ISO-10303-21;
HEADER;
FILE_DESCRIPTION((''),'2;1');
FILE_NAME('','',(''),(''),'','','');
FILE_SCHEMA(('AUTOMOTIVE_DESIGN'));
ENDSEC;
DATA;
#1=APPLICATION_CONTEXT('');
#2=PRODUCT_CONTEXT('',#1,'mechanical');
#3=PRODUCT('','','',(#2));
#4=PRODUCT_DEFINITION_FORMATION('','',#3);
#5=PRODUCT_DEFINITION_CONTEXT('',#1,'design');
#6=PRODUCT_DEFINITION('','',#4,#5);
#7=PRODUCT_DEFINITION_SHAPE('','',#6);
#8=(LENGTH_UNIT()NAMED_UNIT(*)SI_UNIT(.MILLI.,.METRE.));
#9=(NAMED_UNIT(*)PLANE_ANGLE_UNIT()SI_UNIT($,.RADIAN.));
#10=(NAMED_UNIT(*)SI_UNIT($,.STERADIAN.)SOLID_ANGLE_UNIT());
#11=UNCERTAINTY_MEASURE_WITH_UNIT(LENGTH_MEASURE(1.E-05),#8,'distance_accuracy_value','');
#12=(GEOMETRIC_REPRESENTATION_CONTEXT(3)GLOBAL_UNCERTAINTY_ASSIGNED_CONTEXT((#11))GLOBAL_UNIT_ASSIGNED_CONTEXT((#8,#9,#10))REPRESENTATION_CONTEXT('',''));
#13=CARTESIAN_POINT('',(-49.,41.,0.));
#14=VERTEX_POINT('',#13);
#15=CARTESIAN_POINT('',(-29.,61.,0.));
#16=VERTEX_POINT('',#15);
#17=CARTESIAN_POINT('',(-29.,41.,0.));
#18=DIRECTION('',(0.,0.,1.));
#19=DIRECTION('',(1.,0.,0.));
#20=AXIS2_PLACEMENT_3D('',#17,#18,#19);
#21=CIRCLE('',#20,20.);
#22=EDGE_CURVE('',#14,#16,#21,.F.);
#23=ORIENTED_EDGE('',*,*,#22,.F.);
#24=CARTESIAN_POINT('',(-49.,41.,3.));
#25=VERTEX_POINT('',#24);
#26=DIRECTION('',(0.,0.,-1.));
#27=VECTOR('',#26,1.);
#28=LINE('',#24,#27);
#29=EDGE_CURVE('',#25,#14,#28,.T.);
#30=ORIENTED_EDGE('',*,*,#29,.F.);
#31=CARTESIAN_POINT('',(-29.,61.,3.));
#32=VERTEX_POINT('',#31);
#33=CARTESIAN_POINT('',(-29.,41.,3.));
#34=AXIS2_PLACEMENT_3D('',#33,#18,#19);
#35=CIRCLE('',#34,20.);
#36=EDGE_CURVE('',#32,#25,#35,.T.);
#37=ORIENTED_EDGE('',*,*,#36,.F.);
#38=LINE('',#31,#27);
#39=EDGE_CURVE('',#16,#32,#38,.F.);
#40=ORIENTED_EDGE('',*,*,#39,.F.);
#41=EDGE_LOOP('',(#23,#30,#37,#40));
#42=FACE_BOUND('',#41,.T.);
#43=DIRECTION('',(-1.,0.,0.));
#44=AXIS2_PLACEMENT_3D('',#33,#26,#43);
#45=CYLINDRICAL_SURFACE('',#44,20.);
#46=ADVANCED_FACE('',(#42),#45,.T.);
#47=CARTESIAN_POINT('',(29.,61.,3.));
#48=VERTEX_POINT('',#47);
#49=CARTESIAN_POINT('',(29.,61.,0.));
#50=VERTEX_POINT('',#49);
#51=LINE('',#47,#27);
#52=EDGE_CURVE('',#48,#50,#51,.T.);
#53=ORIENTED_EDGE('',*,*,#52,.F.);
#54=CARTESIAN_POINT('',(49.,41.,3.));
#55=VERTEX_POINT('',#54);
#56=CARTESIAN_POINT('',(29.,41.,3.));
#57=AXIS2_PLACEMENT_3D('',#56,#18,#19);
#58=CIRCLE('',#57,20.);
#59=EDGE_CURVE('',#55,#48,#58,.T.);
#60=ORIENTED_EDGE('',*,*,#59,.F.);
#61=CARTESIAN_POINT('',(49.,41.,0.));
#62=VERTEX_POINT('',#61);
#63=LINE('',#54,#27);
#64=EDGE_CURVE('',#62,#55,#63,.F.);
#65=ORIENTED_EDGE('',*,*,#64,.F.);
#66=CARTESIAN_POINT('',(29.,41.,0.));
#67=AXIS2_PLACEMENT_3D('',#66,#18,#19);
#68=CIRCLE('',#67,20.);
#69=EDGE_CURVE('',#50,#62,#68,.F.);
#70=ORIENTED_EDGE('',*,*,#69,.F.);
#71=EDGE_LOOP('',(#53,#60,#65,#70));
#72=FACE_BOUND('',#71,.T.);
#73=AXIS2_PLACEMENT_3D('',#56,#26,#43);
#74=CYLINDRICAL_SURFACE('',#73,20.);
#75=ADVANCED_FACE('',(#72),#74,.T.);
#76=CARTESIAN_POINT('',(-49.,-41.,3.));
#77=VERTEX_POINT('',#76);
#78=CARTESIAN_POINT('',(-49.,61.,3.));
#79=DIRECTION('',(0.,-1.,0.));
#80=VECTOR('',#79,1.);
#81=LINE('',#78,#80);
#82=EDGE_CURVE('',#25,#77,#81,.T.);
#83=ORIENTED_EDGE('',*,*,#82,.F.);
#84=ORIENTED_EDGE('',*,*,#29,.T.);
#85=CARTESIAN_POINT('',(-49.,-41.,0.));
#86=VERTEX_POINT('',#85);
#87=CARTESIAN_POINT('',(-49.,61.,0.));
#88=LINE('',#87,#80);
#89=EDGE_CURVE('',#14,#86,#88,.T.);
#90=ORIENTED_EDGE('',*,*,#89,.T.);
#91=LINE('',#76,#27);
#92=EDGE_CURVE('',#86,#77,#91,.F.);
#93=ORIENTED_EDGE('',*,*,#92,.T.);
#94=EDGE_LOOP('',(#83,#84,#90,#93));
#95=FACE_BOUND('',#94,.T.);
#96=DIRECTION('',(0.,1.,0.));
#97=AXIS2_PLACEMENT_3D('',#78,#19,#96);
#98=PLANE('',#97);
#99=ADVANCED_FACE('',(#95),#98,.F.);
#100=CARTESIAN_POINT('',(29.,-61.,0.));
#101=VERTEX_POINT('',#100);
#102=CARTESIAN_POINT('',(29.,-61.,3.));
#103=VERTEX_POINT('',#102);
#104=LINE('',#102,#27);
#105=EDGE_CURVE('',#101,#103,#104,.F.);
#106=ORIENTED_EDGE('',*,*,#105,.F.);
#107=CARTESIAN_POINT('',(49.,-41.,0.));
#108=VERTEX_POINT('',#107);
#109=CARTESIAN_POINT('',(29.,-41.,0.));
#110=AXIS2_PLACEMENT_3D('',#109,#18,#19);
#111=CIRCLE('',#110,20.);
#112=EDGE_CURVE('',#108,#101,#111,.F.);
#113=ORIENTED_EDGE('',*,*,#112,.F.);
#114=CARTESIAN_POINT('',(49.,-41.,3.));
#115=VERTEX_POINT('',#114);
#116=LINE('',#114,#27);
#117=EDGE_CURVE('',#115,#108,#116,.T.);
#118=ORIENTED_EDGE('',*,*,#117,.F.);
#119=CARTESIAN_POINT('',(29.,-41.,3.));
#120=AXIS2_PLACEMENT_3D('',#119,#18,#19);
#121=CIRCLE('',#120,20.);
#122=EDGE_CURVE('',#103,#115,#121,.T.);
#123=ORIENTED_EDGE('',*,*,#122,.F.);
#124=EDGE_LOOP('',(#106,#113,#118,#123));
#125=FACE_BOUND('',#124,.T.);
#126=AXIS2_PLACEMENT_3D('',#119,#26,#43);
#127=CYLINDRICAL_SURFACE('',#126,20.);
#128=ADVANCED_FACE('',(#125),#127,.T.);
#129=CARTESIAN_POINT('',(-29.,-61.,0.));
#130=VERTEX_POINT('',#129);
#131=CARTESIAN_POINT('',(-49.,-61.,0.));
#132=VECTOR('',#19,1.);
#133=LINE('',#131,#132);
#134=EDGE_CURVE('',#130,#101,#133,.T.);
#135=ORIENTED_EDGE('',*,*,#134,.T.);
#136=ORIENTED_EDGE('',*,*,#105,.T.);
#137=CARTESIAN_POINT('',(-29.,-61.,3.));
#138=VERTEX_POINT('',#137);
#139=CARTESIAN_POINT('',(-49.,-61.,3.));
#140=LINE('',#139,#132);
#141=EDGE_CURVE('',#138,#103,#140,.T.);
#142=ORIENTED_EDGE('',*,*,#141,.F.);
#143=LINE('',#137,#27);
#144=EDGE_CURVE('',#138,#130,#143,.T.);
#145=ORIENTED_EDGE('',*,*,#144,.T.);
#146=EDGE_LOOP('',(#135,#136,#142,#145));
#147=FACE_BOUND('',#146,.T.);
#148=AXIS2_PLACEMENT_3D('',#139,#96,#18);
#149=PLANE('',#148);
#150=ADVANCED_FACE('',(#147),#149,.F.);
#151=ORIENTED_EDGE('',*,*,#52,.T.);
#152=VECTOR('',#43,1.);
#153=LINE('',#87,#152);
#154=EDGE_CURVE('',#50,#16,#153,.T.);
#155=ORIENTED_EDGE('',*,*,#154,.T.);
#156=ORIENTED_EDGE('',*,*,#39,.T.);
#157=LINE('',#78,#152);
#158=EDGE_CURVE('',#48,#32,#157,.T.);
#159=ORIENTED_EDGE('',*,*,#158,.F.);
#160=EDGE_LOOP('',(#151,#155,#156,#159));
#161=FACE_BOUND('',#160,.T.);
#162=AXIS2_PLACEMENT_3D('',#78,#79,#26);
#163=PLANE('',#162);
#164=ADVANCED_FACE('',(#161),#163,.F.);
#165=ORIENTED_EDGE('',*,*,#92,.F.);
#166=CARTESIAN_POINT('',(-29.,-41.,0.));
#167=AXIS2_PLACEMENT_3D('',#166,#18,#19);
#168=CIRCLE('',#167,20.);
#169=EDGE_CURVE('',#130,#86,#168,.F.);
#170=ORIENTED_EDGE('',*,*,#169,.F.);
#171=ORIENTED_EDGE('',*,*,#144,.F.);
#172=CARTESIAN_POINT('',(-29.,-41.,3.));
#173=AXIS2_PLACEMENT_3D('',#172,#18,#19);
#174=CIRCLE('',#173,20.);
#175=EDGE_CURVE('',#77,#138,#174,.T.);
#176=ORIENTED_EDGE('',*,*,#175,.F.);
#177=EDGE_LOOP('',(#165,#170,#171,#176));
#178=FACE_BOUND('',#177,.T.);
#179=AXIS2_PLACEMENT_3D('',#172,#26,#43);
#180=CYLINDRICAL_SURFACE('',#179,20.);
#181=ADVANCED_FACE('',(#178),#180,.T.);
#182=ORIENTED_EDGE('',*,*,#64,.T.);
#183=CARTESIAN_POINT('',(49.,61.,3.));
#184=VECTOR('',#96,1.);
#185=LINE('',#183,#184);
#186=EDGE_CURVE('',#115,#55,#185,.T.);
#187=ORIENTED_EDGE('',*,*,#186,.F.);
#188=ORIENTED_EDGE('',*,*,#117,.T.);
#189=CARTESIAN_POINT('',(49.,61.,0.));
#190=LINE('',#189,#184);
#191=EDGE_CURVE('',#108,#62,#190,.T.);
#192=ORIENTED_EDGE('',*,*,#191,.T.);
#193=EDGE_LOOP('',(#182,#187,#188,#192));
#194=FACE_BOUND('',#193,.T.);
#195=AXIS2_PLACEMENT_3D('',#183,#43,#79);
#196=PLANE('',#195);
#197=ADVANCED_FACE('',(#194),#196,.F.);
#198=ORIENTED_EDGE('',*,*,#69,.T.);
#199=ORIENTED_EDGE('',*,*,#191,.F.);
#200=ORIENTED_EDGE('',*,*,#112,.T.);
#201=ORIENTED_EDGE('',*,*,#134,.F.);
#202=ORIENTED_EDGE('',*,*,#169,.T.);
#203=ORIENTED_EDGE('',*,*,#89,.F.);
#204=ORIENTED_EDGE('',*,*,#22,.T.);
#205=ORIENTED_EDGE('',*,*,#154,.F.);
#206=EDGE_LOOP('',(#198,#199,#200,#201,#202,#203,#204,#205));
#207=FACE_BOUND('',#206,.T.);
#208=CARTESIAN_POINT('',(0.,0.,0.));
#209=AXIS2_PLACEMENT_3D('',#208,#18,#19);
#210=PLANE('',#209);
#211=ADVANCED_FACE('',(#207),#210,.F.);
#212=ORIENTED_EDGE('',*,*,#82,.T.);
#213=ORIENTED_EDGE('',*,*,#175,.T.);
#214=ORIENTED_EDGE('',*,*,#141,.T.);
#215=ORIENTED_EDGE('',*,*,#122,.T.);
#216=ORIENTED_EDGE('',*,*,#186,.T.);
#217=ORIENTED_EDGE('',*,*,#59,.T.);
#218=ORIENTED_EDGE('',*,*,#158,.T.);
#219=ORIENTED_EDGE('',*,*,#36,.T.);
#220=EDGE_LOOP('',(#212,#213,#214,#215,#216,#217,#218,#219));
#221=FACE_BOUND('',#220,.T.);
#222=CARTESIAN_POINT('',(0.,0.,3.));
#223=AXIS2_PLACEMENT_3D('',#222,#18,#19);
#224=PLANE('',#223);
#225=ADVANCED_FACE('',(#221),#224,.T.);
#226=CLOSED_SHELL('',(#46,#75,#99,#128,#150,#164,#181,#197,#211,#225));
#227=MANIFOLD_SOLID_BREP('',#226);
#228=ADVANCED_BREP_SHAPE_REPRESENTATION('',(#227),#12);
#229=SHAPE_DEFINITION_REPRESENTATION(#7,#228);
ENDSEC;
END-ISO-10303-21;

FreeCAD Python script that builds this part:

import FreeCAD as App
import Part
import Sketcher
from FreeCAD import Vector
Q = App.Units.Quantity


def edges_at(feature, points):
    """Names of the edges that pass closest to the given points."""
    edges = feature.Shape.Edges
    near = lambda p: min(range(len(edges)), key=lambda i: edges[i].distToShape(Part.Vertex(*p))[0])
    return sorted({f"Edge{near(p) + 1}" for p in points})

doc = App.newDocument("Part")
params = doc.addObject("Spreadsheet::Sheet", "Params")
for row, (alias, value) in enumerate([
    ("sketch1_width", "98 mm"),
    ("sketch1_height", "122 mm"),
    ("pad1_length", "3 mm"),
    ("fillet_radius", "20 mm"),
], start=1):
    params.set(f"A{row}", alias)
    params.set(f"B{row}", "=" + value)
    params.setAlias(f"B{row}", alias)

body = doc.addObject("PartDesign::Body", "Body")

sketch1 = doc.addObject("Sketcher::SketchObject", "Sketch")
body.addObject(sketch1)
sketch1.AttachmentSupport = (doc.XY_Plane, [""])
sketch1.MapMode = "FlatFace"
sketch1.addGeometry(Part.LineSegment(Vector(-49, 61, 0), Vector(-49, -61, 0)), False)
sketch1.addGeometry(Part.LineSegment(Vector(-49, -61, 0), Vector(49, -61, 0)), False)
sketch1.addGeometry(Part.LineSegment(Vector(49, -61, 0), Vector(49, 61, 0)), False)
sketch1.addGeometry(Part.LineSegment(Vector(49, 61, 0), Vector(-49, 61, 0)), False)
sketch1.addConstraint(Sketcher.Constraint("Coincident", 0, 2, 1, 1))
sketch1.addConstraint(Sketcher.Constraint("Coincident", 1, 2, 2, 1))
sketch1.addConstraint(Sketcher.Constraint("Coincident", 2, 2, 3, 1))
sketch1.addConstraint(Sketcher.Constraint("Coincident", 3, 2, 0, 1))
sketch1.addConstraint(Sketcher.Constraint("Vertical", 0))
sketch1.addConstraint(Sketcher.Constraint("Horizontal", 1))
sketch1.addConstraint(Sketcher.Constraint("Vertical", 2))
sketch1.addConstraint(Sketcher.Constraint("Horizontal", 3))
sketch1.addConstraint(Sketcher.Constraint("Symmetric", 0, 2, 2, 2, -1, 1))
sketch1.addConstraint(Sketcher.Constraint("DistanceX", 1, 1, 1, 2, Q("98 mm")))
sketch1.addConstraint(Sketcher.Constraint("DistanceY", 0, 2, 0, 1, Q("122 mm")))
sketch1.setExpression("Constraints[9]", "Params.sketch1_width")
sketch1.setExpression("Constraints[10]", "Params.sketch1_height")
pad1 = doc.addObject("PartDesign::Pad", "Pad")
body.addObject(pad1)
pad1.Profile = sketch1
pad1.setExpression("Length", "Params.pad1_length")
doc.recompute()

fillet = doc.addObject("PartDesign::Fillet", "Fillet")
body.addObject(fillet)
fillet.Base = (pad1, edges_at(pad1, [
    (49, -61, 1.5),
    (-49, -61, 1.5),
    (-49, 61, 1.5),
    (49, 61, 1.5),
]))
fillet.setExpression("Radius", "Params.fillet_radius")

doc.recompute()
